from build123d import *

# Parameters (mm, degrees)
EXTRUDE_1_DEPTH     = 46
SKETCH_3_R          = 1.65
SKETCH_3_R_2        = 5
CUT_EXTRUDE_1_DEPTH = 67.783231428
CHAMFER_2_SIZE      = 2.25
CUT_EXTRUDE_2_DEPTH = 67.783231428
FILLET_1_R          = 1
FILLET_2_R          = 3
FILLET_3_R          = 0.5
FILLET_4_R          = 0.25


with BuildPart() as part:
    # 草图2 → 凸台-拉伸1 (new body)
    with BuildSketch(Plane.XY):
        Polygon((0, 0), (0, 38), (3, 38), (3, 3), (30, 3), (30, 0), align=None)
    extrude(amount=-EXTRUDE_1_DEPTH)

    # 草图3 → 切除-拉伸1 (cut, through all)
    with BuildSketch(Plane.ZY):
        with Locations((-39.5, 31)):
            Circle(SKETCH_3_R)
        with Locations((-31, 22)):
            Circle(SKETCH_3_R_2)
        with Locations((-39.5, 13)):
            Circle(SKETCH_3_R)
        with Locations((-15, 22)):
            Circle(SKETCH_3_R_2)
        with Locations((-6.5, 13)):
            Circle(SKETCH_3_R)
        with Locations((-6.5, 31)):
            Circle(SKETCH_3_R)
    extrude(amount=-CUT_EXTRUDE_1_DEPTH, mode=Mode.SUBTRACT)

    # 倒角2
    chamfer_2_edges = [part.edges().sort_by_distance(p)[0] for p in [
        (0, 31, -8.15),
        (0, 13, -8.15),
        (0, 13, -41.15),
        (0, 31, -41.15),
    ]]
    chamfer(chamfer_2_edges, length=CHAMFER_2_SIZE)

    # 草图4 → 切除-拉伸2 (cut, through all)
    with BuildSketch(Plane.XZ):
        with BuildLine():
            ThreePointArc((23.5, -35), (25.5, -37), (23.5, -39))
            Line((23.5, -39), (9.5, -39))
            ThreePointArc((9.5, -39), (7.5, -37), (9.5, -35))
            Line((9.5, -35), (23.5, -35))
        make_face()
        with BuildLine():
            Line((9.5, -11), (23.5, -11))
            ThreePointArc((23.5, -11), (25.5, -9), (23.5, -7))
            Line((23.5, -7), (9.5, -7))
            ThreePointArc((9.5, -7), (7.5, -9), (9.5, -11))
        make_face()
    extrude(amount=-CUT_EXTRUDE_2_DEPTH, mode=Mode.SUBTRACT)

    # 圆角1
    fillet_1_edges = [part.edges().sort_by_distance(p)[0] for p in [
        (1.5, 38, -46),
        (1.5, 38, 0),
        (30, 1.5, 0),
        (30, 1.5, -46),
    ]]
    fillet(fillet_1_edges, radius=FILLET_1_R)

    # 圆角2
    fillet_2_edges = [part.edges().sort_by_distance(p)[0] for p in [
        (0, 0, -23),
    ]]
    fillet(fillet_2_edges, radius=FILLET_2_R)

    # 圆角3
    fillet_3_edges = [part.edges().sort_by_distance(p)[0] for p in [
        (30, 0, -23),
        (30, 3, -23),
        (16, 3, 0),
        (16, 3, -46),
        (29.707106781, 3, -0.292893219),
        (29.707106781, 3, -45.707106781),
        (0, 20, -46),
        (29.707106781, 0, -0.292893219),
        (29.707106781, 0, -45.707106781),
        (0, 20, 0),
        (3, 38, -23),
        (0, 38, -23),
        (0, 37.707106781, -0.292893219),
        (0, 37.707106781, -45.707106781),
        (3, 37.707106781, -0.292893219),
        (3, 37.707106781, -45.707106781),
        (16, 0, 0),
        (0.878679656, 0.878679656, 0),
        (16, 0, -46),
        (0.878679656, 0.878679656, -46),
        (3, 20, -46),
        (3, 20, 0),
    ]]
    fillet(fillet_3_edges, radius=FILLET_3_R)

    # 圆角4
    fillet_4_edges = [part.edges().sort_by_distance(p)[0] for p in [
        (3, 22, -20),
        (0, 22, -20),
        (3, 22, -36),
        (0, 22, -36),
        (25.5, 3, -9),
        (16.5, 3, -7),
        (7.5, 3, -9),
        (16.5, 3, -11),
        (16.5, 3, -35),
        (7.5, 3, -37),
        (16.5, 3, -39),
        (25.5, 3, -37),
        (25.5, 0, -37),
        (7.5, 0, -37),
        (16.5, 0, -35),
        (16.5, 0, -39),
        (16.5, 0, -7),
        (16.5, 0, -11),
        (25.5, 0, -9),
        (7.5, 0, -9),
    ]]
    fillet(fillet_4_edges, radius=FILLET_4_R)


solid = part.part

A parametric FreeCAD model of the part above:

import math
import FreeCAD as App
import Part
import Sketcher
from FreeCAD import Vector


def edges_at(feature, points):
    """Names of the edges that pass closest to the given points."""
    edges = feature.Shape.Edges
    near = lambda p: min(range(len(edges)), key=lambda i: edges[i].distToShape(Part.Vertex(*p))[0])
    return sorted({f"Edge{near(p) + 1}" for p in points})

doc = App.newDocument("Part")
body = doc.addObject("PartDesign::Body", "Body")

sketch1 = doc.addObject("Sketcher::SketchObject", "Sketch")
body.addObject(sketch1)
sketch1.AttachmentSupport = (doc.XY_Plane, [""])
sketch1.MapMode = "FlatFace"
sketch1.addGeometry([
    Part.LineSegment(Vector(0, 38, 0), Vector(0, 0, 0)),
    Part.LineSegment(Vector(0, 0, 0), Vector(30, 0, 0)),
    Part.LineSegment(Vector(30, 0, 0), Vector(30, 3, 0)),
    Part.LineSegment(Vector(30, 3, 0), Vector(3, 3, 0)),
    Part.LineSegment(Vector(3, 3, 0), Vector(3, 38, 0)),
    Part.LineSegment(Vector(3, 38, 0), Vector(0, 38, 0)),
], False)
sketch1.addConstraint([
    Sketcher.Constraint("Coincident", 0, 2, 1, 1),
    Sketcher.Constraint("Coincident", 1, 2, 2, 1),
    Sketcher.Constraint("Coincident", 2, 2, 3, 1),
    Sketcher.Constraint("Coincident", 3, 2, 4, 1),
    Sketcher.Constraint("Coincident", 4, 2, 5, 1),
    Sketcher.Constraint("Coincident", 5, 2, 0, 1),
    Sketcher.Constraint("Vertical", 0),
    Sketcher.Constraint("Horizontal", 1),
    Sketcher.Constraint("Vertical", 2),
    Sketcher.Constraint("Horizontal", 3),
    Sketcher.Constraint("Vertical", 4),
    Sketcher.Constraint("Horizontal", 5),
    Sketcher.Constraint("Coincident", 0, 2, -1, 1),
    Sketcher.Constraint("Equal", 5, 2),
    Sketcher.Constraint("DistanceX", 1, 1, 1, 2, 30.0),
    Sketcher.Constraint("DistanceX", 3, 2, 3, 1, 27.0),
    Sketcher.Constraint("DistanceY", 0, 2, 0, 1, 38.0),
])
pad1 = doc.addObject("PartDesign::Pad", "Pad")
body.addObject(pad1)
pad1.Profile = sketch1
pad1.Length = 46
pad1.Reversed = True

sketch2 = doc.addObject("Sketcher::SketchObject", "Sketch001")
body.addObject(sketch2)
sketch2.AttachmentSupport = (doc.YZ_Plane, [""])
sketch2.MapMode = "FlatFace"
sketch2.addGeometry([
    Part.Circle(Vector(31, -39.5, 0), Vector(0, 0, 1), 1.65),
    Part.Circle(Vector(22, -31, 0), Vector(0, 0, 1), 5),
    Part.Circle(Vector(13, -39.5, 0), Vector(0, 0, 1), 1.65),
    Part.Circle(Vector(22, -15, 0), Vector(0, 0, 1), 5),
    Part.Circle(Vector(13, -6.5, 0), Vector(0, 0, 1), 1.65),
    Part.Circle(Vector(31, -6.5, 0), Vector(0, 0, 1), 1.65),
], False)
sketch2.addConstraint([
    Sketcher.Constraint("Equal", 0, 2),
    Sketcher.Constraint("Equal", 1, 3),
    Sketcher.Constraint("Equal", 2, 4),
    Sketcher.Constraint("Equal", 4, 5),
    Sketcher.Constraint("Horizontal", 0, 3, 2, 3),
    Sketcher.Constraint("Horizontal", 4, 3, 5, 3),
    Sketcher.Constraint("Vertical", 1, 3, 3, 3),
    Sketcher.Constraint("Vertical", 2, 3, 4, 3),
    Sketcher.Constraint("Vertical", 0, 3, 5, 3),
    Sketcher.Constraint("Diameter", 1, 10.0),
    Sketcher.Constraint("Diameter", 0, 3.3),
    Sketcher.Constraint("DistanceX", -1, 1, 0, 3, 31.0),
    Sketcher.Constraint("DistanceX", -1, 1, 1, 3, 22.0),
    Sketcher.Constraint("DistanceY", 1, 3, -1, 1, 31.0),
    Sketcher.Constraint("DistanceX", -1, 1, 2, 3, 13.0),
    Sketcher.Constraint("DistanceY", 3, 3, -1, 1, 15.0),
    Sketcher.Constraint("DistanceY", 2, 3, 4, 3, 33.0),
    Sketcher.Constraint("DistanceY", 0, 3, -1, 1, 39.5),
])
pocket1 = doc.addObject("PartDesign::Pocket", "Pocket")
body.addObject(pocket1)
pocket1.Profile = sketch2
pocket1.Type = "ThroughAll"
pocket1.Reversed = True
doc.recompute()

chamfer = doc.addObject("PartDesign::Chamfer", "Chamfer")
body.addObject(chamfer)
chamfer.Base = (pocket1, edges_at(pocket1, [
    (0, 31, -8.15),
    (0, 13, -8.15),
    (0, 13, -41.15),
    (0, 31, -41.15),
]))
chamfer.Size = 2.25

sketch3 = doc.addObject("Sketcher::SketchObject", "Sketch002")
body.addObject(sketch3)
sketch3.AttachmentSupport = (doc.XZ_Plane, [""])
sketch3.MapMode = "FlatFace"
sketch3.addGeometry([
    Part.ArcOfCircle(Part.Circle(Vector(23.5, -37, 0), Vector(0, 0, 1), 2), math.radians(-90), math.radians(90)),
    Part.LineSegment(Vector(23.5, -35, 0), Vector(9.5, -35, 0)),
    Part.ArcOfCircle(Part.Circle(Vector(9.5, -37, 0), Vector(0, 0, 1), 2), math.radians(90), math.radians(270)),
    Part.LineSegment(Vector(9.5, -39, 0), Vector(23.5, -39, 0)),
    Part.LineSegment(Vector(9.5, -11, 0), Vector(23.5, -11, 0)),
    Part.ArcOfCircle(Part.Circle(Vector(23.5, -9, 0), Vector(0, 0, 1), 2), math.radians(-90), math.radians(90)),
    Part.LineSegment(Vector(23.5, -7, 0), Vector(9.5, -7, 0)),
    Part.ArcOfCircle(Part.Circle(Vector(9.5, -9, 0), Vector(0, 0, 1), 2), math.radians(90), math.radians(270)),
], False)
sketch3.addConstraint([
    Sketcher.Constraint("Tangent", 0, 2, 1, 1),
    Sketcher.Constraint("Tangent", 1, 2, 2, 1),
    Sketcher.Constraint("Tangent", 2, 2, 3, 1),
    Sketcher.Constraint("Tangent", 3, 2, 0, 1),
    Sketcher.Constraint("Tangent", 4, 2, 5, 1),
    Sketcher.Constraint("Tangent", 5, 2, 6, 1),
    Sketcher.Constraint("Tangent", 6, 2, 7, 1),
    Sketcher.Constraint("Tangent", 7, 2, 4, 1),
    Sketcher.Constraint("Horizontal", 1),
    Sketcher.Constraint("Horizontal", 3),
    Sketcher.Constraint("Horizontal", 4),
    Sketcher.Constraint("Horizontal", 6),
    Sketcher.Constraint("Equal", 2, 5),
    Sketcher.Constraint("Vertical", 0, 3, 5, 3),
    Sketcher.Constraint("Vertical", 2, 3, 7, 3),
    Sketcher.Constraint("Radius", 0, 2.0),
    Sketcher.Constraint("DistanceX", 1, 2, 1, 1, 14.0),
    Sketcher.Constraint("DistanceY", 0, 3, -1, 1, 37.0),
    Sketcher.Constraint("DistanceY", 5, 3, -1, 1, 9.0),
    Sketcher.Constraint("DistanceX", -1, 1, 0, 3, 23.5),
])
pocket2 = doc.addObject("PartDesign::Pocket", "Pocket001")
body.addObject(pocket2)
pocket2.Profile = sketch3
pocket2.Type = "ThroughAll"
doc.recompute()

fillet = doc.addObject("PartDesign::Fillet", "Fillet")
body.addObject(fillet)
fillet.Base = (pocket2, edges_at(pocket2, [
    (1.5, 38, -46),
    (1.5, 38, 0),
    (30, 1.5, 0),
    (30, 1.5, -46),
]))
fillet.Radius = 1
doc.recompute()

fillet2 = doc.addObject("PartDesign::Fillet", "Fillet001")
body.addObject(fillet2)
fillet2.Base = (fillet, edges_at(fillet, [(0, 0, -23)]))
fillet2.Radius = 3
doc.recompute()

fillet3 = doc.addObject("PartDesign::Fillet", "Fillet002")
body.addObject(fillet3)
fillet3.Base = (fillet2, edges_at(fillet2, [
    (30, 0, -23),
    (30, 3, -23),
    (16, 3, 0),
    (16, 3, -46),
    (29.707, 3, -0.293),
    (29.707, 3, -45.707),
    (0, 20, -46),
    (29.707, 0, -0.293),
    (29.707, 0, -45.707),
    (0, 20, 0),
    (3, 38, -23),
    (0, 38, -23),
    (0, 37.707, -0.293),
    (0, 37.707, -45.707),
    (3, 37.707, -0.293),
    (3, 37.707, -45.707),
    (16, 0, 0),
    (0.879, 0.879, 0),
    (16, 0, -46),
    (0.879, 0.879, -46),
    (3, 20, -46),
    (3, 20, 0),
]))
fillet3.Radius = 0.5
doc.recompute()

fillet4 = doc.addObject("PartDesign::Fillet", "Fillet003")
body.addObject(fillet4)
fillet4.Base = (fillet3, edges_at(fillet3, [
    (3, 22, -20),
    (0, 22, -20),
    (3, 22, -36),
    (0, 22, -36),
    (25.5, 3, -9),
    (16.5, 3, -7),
    (7.5, 3, -9),
    (16.5, 3, -11),
    (16.5, 3, -35),
    (7.5, 3, -37),
    (16.5, 3, -39),
    (25.5, 3, -37),
    (25.5, 0, -37),
    (7.5, 0, -37),
    (16.5, 0, -35),
    (16.5, 0, -39),
    (16.5, 0, -7),
    (16.5, 0, -11),
    (25.5, 0, -9),
    (7.5, 0, -9),
]))
fillet4.Radius = 0.25

doc.recompute()
